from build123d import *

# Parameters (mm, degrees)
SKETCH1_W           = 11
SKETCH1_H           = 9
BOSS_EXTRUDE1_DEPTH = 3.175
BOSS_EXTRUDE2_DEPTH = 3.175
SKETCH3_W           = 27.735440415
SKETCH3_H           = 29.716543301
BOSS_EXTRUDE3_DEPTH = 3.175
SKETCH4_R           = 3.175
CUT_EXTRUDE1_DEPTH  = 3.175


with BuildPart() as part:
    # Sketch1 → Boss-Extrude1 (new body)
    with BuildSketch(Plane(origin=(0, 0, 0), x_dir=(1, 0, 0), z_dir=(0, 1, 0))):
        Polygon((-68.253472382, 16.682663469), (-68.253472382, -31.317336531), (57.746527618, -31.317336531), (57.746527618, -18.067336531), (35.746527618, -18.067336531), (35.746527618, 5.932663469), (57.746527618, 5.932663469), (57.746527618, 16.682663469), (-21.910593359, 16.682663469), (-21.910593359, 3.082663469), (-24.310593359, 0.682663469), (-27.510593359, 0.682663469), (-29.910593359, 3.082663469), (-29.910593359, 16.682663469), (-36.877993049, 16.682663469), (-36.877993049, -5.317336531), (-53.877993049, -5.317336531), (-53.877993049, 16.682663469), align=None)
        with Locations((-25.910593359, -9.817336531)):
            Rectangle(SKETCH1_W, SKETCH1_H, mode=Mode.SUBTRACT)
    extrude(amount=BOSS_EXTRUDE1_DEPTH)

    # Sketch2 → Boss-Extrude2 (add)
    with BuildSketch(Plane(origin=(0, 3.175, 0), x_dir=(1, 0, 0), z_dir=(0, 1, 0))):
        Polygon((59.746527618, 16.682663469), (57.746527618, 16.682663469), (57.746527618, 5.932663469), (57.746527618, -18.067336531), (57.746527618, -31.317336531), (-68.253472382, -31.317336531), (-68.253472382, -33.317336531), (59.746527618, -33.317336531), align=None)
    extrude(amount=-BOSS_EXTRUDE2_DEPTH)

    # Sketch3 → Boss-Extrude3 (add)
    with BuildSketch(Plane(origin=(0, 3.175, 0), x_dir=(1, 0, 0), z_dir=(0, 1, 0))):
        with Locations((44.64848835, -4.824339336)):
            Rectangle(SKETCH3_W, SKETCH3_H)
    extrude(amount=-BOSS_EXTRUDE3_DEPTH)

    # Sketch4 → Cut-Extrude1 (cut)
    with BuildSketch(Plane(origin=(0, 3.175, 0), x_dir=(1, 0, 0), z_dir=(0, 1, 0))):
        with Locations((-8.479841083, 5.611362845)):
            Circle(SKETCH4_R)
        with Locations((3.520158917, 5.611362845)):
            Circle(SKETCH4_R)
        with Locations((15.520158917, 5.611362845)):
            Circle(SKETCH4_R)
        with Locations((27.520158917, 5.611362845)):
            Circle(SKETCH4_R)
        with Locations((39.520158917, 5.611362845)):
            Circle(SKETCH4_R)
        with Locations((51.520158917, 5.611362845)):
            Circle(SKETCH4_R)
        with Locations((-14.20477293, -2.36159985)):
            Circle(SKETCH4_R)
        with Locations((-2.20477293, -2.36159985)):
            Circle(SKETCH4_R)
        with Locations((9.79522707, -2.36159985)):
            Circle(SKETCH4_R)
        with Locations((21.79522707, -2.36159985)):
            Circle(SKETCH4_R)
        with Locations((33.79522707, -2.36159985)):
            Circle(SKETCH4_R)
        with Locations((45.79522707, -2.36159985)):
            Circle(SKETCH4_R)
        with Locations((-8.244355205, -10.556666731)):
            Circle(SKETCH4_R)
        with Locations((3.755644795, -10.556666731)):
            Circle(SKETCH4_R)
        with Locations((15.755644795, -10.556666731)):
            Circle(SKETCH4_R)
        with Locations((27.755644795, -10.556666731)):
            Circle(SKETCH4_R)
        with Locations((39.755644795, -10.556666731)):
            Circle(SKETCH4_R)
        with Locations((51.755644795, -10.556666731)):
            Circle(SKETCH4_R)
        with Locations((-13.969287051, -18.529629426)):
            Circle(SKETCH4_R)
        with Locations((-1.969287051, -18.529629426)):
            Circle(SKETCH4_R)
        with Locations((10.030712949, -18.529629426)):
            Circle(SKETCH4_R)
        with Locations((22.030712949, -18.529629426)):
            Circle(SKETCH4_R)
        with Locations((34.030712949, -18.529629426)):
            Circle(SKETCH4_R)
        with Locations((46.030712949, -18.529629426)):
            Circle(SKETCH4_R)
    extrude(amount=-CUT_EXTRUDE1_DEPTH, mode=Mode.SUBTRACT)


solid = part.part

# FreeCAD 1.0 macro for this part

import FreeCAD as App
import Part
import Sketcher
from FreeCAD import Vector

doc = App.newDocument("Part")
body = doc.addObject("PartDesign::Body", "Body")

# Sketch on XZ plane
sketch1 = doc.addObject("Sketcher::SketchObject", "Sketch")
body.addObject(sketch1)
sketch1.AttachmentSupport = (doc.XZ_Plane, [""])
sketch1.MapMode = "FlatFace"
sketch1.addGeometry([
    Part.LineSegment(Vector(-68.3, -16.7, 0), Vector(-68.3, 31.3, 0)),  # 0
    Part.LineSegment(Vector(-68.3, 31.3, 0), Vector(57.7, 31.3, 0)),  # 1
    Part.LineSegment(Vector(57.7, 31.3, 0), Vector(57.7, 18.1, 0)),  # 2
    Part.LineSegment(Vector(57.7, 18.1, 0), Vector(35.7, 18.1, 0)),  # 3
    Part.LineSegment(Vector(35.7, 18.1, 0), Vector(35.7, -5.9, 0)),  # 4
    Part.LineSegment(Vector(35.7, -5.9, 0), Vector(57.7, -5.9, 0)),  # 5
    Part.LineSegment(Vector(57.7, -5.9, 0), Vector(57.7, -16.7, 0)),  # 6
    Part.LineSegment(Vector(57.7, -16.7, 0), Vector(-21.9, -16.7, 0)),  # 7
    Part.LineSegment(Vector(-21.9, -16.7, 0), Vector(-21.9, -3.1, 0)),  # 8
    Part.LineSegment(Vector(-21.9, -3.1, 0), Vector(-24.3, -0.7, 0)),  # 9
    Part.LineSegment(Vector(-24.3, -0.7, 0), Vector(-27.5, -0.7, 0)),  # 10
    Part.LineSegment(Vector(-27.5, -0.7, 0), Vector(-29.9, -3.1, 0)),  # 11
    Part.LineSegment(Vector(-29.9, -3.1, 0), Vector(-29.9, -16.7, 0)),  # 12
    Part.LineSegment(Vector(-29.9, -16.7, 0), Vector(-36.9, -16.7, 0)),  # 13
    Part.LineSegment(Vector(-36.9, -16.7, 0), Vector(-36.9, 5.3, 0)),  # 14
    Part.LineSegment(Vector(-36.9, 5.3, 0), Vector(-53.9, 5.3, 0)),  # 15
    Part.LineSegment(Vector(-53.9, 5.3, 0), Vector(-53.9, -16.7, 0)),  # 16
    Part.LineSegment(Vector(-53.9, -16.7, 0), Vector(-68.3, -16.7, 0)),  # 17
    Part.LineSegment(Vector(-20.4, 14.3, 0), Vector(-31.4, 14.3, 0)),  # 18
    Part.LineSegment(Vector(-31.4, 14.3, 0), Vector(-31.4, 5.3, 0)),  # 19
    Part.LineSegment(Vector(-31.4, 5.3, 0), Vector(-20.4, 5.3, 0)),  # 20
    Part.LineSegment(Vector(-20.4, 5.3, 0), Vector(-20.4, 14.3, 0)),  # 21
], False)
sketch1.addConstraint([
    Sketcher.Constraint("Coincident", 0, 2, 1, 1),
    Sketcher.Constraint("Coincident", 1, 2, 2, 1),
    Sketcher.Constraint("Coincident", 2, 2, 3, 1),
    Sketcher.Constraint("Coincident", 3, 2, 4, 1),
    Sketcher.Constraint("Coincident", 4, 2, 5, 1),
    Sketcher.Constraint("Coincident", 5, 2, 6, 1),
    Sketcher.Constraint("Coincident", 6, 2, 7, 1),
    Sketcher.Constraint("Coincident", 7, 2, 8, 1),
    Sketcher.Constraint("Coincident", 8, 2, 9, 1),
    Sketcher.Constraint("Coincident", 9, 2, 10, 1),
    Sketcher.Constraint("Coincident", 10, 2, 11, 1),
    Sketcher.Constraint("Coincident", 11, 2, 12, 1),
    Sketcher.Constraint("Coincident", 12, 2, 13, 1),
    Sketcher.Constraint("Coincident", 13, 2, 14, 1),
    Sketcher.Constraint("Coincident", 14, 2, 15, 1),
    Sketcher.Constraint("Coincident", 15, 2, 16, 1),
    Sketcher.Constraint("Coincident", 16, 2, 17, 1),
    Sketcher.Constraint("Coincident", 17, 2, 0, 1),
    Sketcher.Constraint("Coincident", 18, 2, 19, 1),
    Sketcher.Constraint("Coincident", 19, 2, 20, 1),
    Sketcher.Constraint("Coincident", 20, 2, 21, 1),
    Sketcher.Constraint("Coincident", 21, 2, 18, 1),
    Sketcher.Constraint("Vertical", 0),
    Sketcher.Constraint("Horizontal", 1),
    Sketcher.Constraint("Vertical", 2),
    Sketcher.Constraint("Horizontal", 3),
    Sketcher.Constraint("Vertical", 4),
    Sketcher.Constraint("Horizontal", 5),
    Sketcher.Constraint("Vertical", 6),
    Sketcher.Constraint("Horizontal", 7),
    Sketcher.Constraint("Vertical", 8),
    Sketcher.Constraint("Horizontal", 10),
    Sketcher.Constraint("Vertical", 12),
    Sketcher.Constraint("Horizontal", 13),
    Sketcher.Constraint("Vertical", 14),
    Sketcher.Constraint("Horizontal", 15),
    Sketcher.Constraint("Vertical", 16),
    Sketcher.Constraint("Horizontal", 17),
    Sketcher.Constraint("Horizontal", 18),
    Sketcher.Constraint("Vertical", 19),
    Sketcher.Constraint("Horizontal", 20),
    Sketcher.Constraint("Vertical", 21),
    Sketcher.Constraint("Perpendicular", 9, 11),
    Sketcher.Constraint("Horizontal", 8, 2, 11, 2),
    Sketcher.Constraint("Horizontal", 7, 2, 12, 2),
    Sketcher.Constraint("Horizontal", 13, 2, 16, 2),
    Sketcher.Constraint("Horizontal", 15, 2, 19, 2),
    Sketcher.Constraint("Vertical", 2, 2, 5, 2),
    Sketcher.Constraint("Equal", 5, 14),
    Sketcher.Constraint("Equal", 9, 11),
    Sketcher.Constraint("DistanceX", 1, 1, 1, 2, 126.0),
    Sketcher.Constraint("DistanceX", 3, 2, 3, 1, 22.0),
    Sketcher.Constraint("DistanceX", 15, 2, 15, 1, 17.0),
    Sketcher.Constraint("DistanceX", 18, 2, 18, 1, 11.0),
    Sketcher.Constraint("DistanceY", 0, 1, 0, 2, 48.0),
    Sketcher.Constraint("DistanceY", 4, 2, 4, 1, 24.0),
    Sketcher.Constraint("DistanceY", 19, 2, 19, 1, 9.0),
    Sketcher.Constraint("DistanceX", 10, 2, 10, 1, 3.2),
    Sketcher.Constraint("DistanceY", 8, 1, 8, 2, 13.6),
    Sketcher.Constraint("DistanceY", 7, 2, 9, 2, 16.0),
    Sketcher.Constraint("DistanceY", 2, 2, 2, 1, 13.25),
    Sketcher.Constraint("DistanceX", 18, 2, 10, 2, 3.9),
    Sketcher.Constraint("DistanceX", 13, 2, 13, 1, 6.9674),
    Sketcher.Constraint("DistanceX", 7, 2, 7, 1, 79.657121),
    Sketcher.Constraint("DistanceX", 0, 2, -1, 1, 68.253472),
    Sketcher.Constraint("DistanceY", -1, 1, 0, 2, 31.317337),
])
pad1 = doc.addObject("PartDesign::Pad", "Pad")
body.addObject(pad1)
pad1.Profile = sketch1
pad1.Length = 3.175
pad1.Reversed = True

# Sketch on XZ plane
sketch2 = doc.addObject("Sketcher::SketchObject", "Sketch001")
body.addObject(sketch2)
sketch2.AttachmentSupport = (doc.XZ_Plane, [""])
sketch2.MapMode = "FlatFace"
sketch2.AttachmentOffset = App.Placement(Vector(0, 0, -3.175), App.Rotation())
sketch2.addGeometry([
    Part.LineSegment(Vector(59.7, -16.7, 0), Vector(57.7, -16.7, 0)),  # 0
    Part.LineSegment(Vector(57.7, -16.7, 0), Vector(57.7, 31.3, 0)),  # 1
    Part.LineSegment(Vector(57.7, 31.3, 0), Vector(-68.3, 31.3, 0)),  # 2
    Part.LineSegment(Vector(-68.3, 31.3, 0), Vector(-68.3, 33.3, 0)),  # 3
    Part.LineSegment(Vector(-68.3, 33.3, 0), Vector(59.7, 33.3, 0)),  # 4
    Part.LineSegment(Vector(59.7, 33.3, 0), Vector(59.7, -16.7, 0)),  # 5
], False)
sketch2.addConstraint([
    Sketcher.Constraint("Coincident", 0, 2, 1, 1),
    Sketcher.Constraint("Coincident", 1, 2, 2, 1),
    Sketcher.Constraint("Coincident", 2, 2, 3, 1),
    Sketcher.Constraint("Coincident", 3, 2, 4, 1),
    Sketcher.Constraint("Coincident", 4, 2, 5, 1),
    Sketcher.Constraint("Coincident", 5, 2, 0, 1),
    Sketcher.Constraint("Horizontal", 0),
    Sketcher.Constraint("Vertical", 1),
    Sketcher.Constraint("Horizontal", 2),
    Sketcher.Constraint("Vertical", 3),
    Sketcher.Constraint("Horizontal", 4),
    Sketcher.Constraint("Vertical", 5),
    Sketcher.Constraint("Equal", 0, 3),
    Sketcher.Constraint("DistanceX", 0, 2, 0, 1, 2.0),
    Sketcher.Constraint("DistanceX", 2, 2, 2, 1, 126.0),
    Sketcher.Constraint("DistanceY", 1, 1, 1, 2, 48.0),
    Sketcher.Constraint("DistanceX", -1, 1, 0, 2, 57.746528),
    Sketcher.Constraint("DistanceY", 0, 2, -1, 1, 16.682663),
])
pad2 = doc.addObject("PartDesign::Pad", "Pad001")
body.addObject(pad2)
pad2.Profile = sketch2
pad2.Length = 3.175

# Sketch on XZ plane
sketch3 = doc.addObject("Sketcher::SketchObject", "Sketch002")
body.addObject(sketch3)
sketch3.AttachmentSupport = (doc.XZ_Plane, [""])
sketch3.MapMode = "FlatFace"
sketch3.AttachmentOffset = App.Placement(Vector(0, 0, -3.175), App.Rotation())
sketch3.addGeometry([
    Part.LineSegment(Vector(31, -10, 0), Vector(31, 20, 0)),
    Part.LineSegment(Vector(31, 20, 0), Vector(59, 20, 0)),
    Part.LineSegment(Vector(59, 20, 0), Vector(59, -10, 0)),
    Part.LineSegment(Vector(59, -10, 0), Vector(31, -10, 0)),
], False)
sketch3.addConstraint([
    Sketcher.Constraint("Coincident", 0, 2, 1, 1),
    Sketcher.Constraint("Coincident", 1, 2, 2, 1),
    Sketcher.Constraint("Coincident", 2, 2, 3, 1),
    Sketcher.Constraint("Coincident", 3, 2, 0, 1),
    Sketcher.Constraint("Vertical", 0),
    Sketcher.Constraint("Horizontal", 1),
    Sketcher.Constraint("Vertical", 2),
    Sketcher.Constraint("Horizontal", 3),
    Sketcher.Constraint("DistanceX", 1, 1, 1, 2, 27.73544),
    Sketcher.Constraint("DistanceY", 0, 1, 0, 2, 29.716543),
    Sketcher.Constraint("DistanceX", -1, 1, 0, 2, 30.780768),
    Sketcher.Constraint("DistanceY", -1, 1, 0, 2, 19.682611),
])
pad3 = doc.addObject("PartDesign::Pad", "Pad002")
body.addObject(pad3)
pad3.Profile = sketch3
pad3.Length = 3.175

# Sketch on XZ plane
sketch4 = doc.addObject("Sketcher::SketchObject", "Sketch003")
body.addObject(sketch4)
sketch4.AttachmentSupport = (doc.XZ_Plane, [""])
sketch4.MapMode = "FlatFace"
sketch4.AttachmentOffset = App.Placement(Vector(0, 0, -3.175), App.Rotation())
sketch4.addGeometry([
    Part.Circle(Vector(-8.5, -5.6, 0), Vector(0, 0, 1), 3.2),  # 0
    Part.Circle(Vector(3.5, -5.6, 0), Vector(0, 0, 1), 3.2),  # 1
    Part.Circle(Vector(15.5, -5.6, 0), Vector(0, 0, 1), 3.2),  # 2
    Part.Circle(Vector(27.5, -5.6, 0), Vector(0, 0, 1), 3.2),  # 3
    Part.Circle(Vector(39.5, -5.6, 0), Vector(0, 0, 1), 3.2),  # 4
    Part.Circle(Vector(51.5, -5.6, 0), Vector(0, 0, 1), 3.2),  # 5
    Part.Circle(Vector(-14.2, 2.4, 0), Vector(0, 0, 1), 3.2),  # 6
    Part.Circle(Vector(-2.2, 2.4, 0), Vector(0, 0, 1), 3.2),  # 7
    Part.Circle(Vector(9.8, 2.4, 0), Vector(0, 0, 1), 3.2),  # 8
    Part.Circle(Vector(21.8, 2.4, 0), Vector(0, 0, 1), 3.2),  # 9
    Part.Circle(Vector(33.8, 2.4, 0), Vector(0, 0, 1), 3.2),  # 10
    Part.Circle(Vector(45.8, 2.4, 0), Vector(0, 0, 1), 3.2),  # 11
    Part.Circle(Vector(-8.2, 10.6, 0), Vector(0, 0, 1), 3.2),  # 12
    Part.Circle(Vector(3.8, 10.6, 0), Vector(0, 0, 1), 3.2),  # 13
    Part.Circle(Vector(15.8, 10.6, 0), Vector(0, 0, 1), 3.2),  # 14
    Part.Circle(Vector(27.8, 10.6, 0), Vector(0, 0, 1), 3.2),  # 15
    Part.Circle(Vector(39.8, 10.6, 0), Vector(0, 0, 1), 3.2),  # 16
    Part.Circle(Vector(51.8, 10.6, 0), Vector(0, 0, 1), 3.2),  # 17
    Part.Circle(Vector(-14, 18.5, 0), Vector(0, 0, 1), 3.2),  # 18
    Part.Circle(Vector(-2, 18.5, 0), Vector(0, 0, 1), 3.2),  # 19
    Part.Circle(Vector(10, 18.5, 0), Vector(0, 0, 1), 3.2),  # 20
    Part.Circle(Vector(22, 18.5, 0), Vector(0, 0, 1), 3.2),  # 21
    Part.Circle(Vector(34, 18.5, 0), Vector(0, 0, 1), 3.2),  # 22
    Part.Circle(Vector(46, 18.5, 0), Vector(0, 0, 1), 3.2),  # 23
], False)
sketch4.addConstraint([
    Sketcher.Constraint("Equal", 0, 1),
    Sketcher.Constraint("Equal", 1, 2),
    Sketcher.Constraint("Equal", 2, 3),
    Sketcher.Constraint("Equal", 3, 4),
    Sketcher.Constraint("Equal", 4, 5),
    Sketcher.Constraint("Equal", 5, 6),
    Sketcher.Constraint("Equal", 6, 7),
    Sketcher.Constraint("Equal", 7, 8),
    Sketcher.Constraint("Equal", 8, 9),
    Sketcher.Constraint("Equal", 9, 10),
    Sketcher.Constraint("Equal", 10, 11),
    Sketcher.Constraint("Equal", 11, 12),
    Sketcher.Constraint("Equal", 12, 13),
    Sketcher.Constraint("Equal", 13, 14),
    Sketcher.Constraint("Equal", 14, 15),
    Sketcher.Constraint("Equal", 15, 16),
    Sketcher.Constraint("Equal", 16, 17),
    Sketcher.Constraint("Equal", 17, 18),
    Sketcher.Constraint("Equal", 18, 19),
    Sketcher.Constraint("Equal", 19, 20),
    Sketcher.Constraint("Equal", 20, 21),
    Sketcher.Constraint("Equal", 21, 22),
    Sketcher.Constraint("Equal", 22, 23),
    Sketcher.Constraint("Horizontal", 0, 3, 1, 3),
    Sketcher.Constraint("Horizontal", 1, 3, 2, 3),
    Sketcher.Constraint("Horizontal", 2, 3, 3, 3),
    Sketcher.Constraint("Horizontal", 3, 3, 4, 3),
    Sketcher.Constraint("Horizontal", 4, 3, 5, 3),
    Sketcher.Constraint("Horizontal", 6, 3, 7, 3),
    Sketcher.Constraint("Horizontal", 7, 3, 8, 3),
    Sketcher.Constraint("Horizontal", 8, 3, 9, 3),
    Sketcher.Constraint("Horizontal", 9, 3, 10, 3),
    Sketcher.Constraint("Horizontal", 10, 3, 11, 3),
    Sketcher.Constraint("Horizontal", 12, 3, 13, 3),
    Sketcher.Constraint("Horizontal", 13, 3, 14, 3),
    Sketcher.Constraint("Horizontal", 14, 3, 15, 3),
    Sketcher.Constraint("Horizontal", 15, 3, 16, 3),
    Sketcher.Constraint("Horizontal", 16, 3, 17, 3),
    Sketcher.Constraint("Horizontal", 18, 3, 19, 3),
    Sketcher.Constraint("Horizontal", 19, 3, 20, 3),
    Sketcher.Constraint("Horizontal", 20, 3, 21, 3),
    Sketcher.Constraint("Horizontal", 21, 3, 22, 3),
    Sketcher.Constraint("Horizontal", 22, 3, 23, 3),
    Sketcher.Constraint("Diameter", 0, 6.35),
    Sketcher.Constraint("DistanceX", 0, 3, 1, 3, 12.0),
    Sketcher.Constraint("DistanceX", 1, 3, 2, 3, 12.0),
    Sketcher.Constraint("DistanceX", 2, 3, 3, 3, 12.0),
    Sketcher.Constraint("DistanceX", 3, 3, 4, 3, 12.0),
    Sketcher.Constraint("DistanceX", 4, 3, 5, 3, 12.0),
    Sketcher.Constraint("DistanceX", 6, 3, 7, 3, 12.0),
    Sketcher.Constraint("DistanceX", 7, 3, 8, 3, 12.0),
    Sketcher.Constraint("DistanceX", 8, 3, 9, 3, 12.0),
    Sketcher.Constraint("DistanceX", 9, 3, 10, 3, 12.0),
    Sketcher.Constraint("DistanceX", 10, 3, 11, 3, 12.0),
    Sketcher.Constraint("DistanceX", 12, 3, 13, 3, 12.0),
    Sketcher.Constraint("DistanceX", 13, 3, 14, 3, 12.0),
    Sketcher.Constraint("DistanceX", 14, 3, 15, 3, 12.0),
    Sketcher.Constraint("DistanceX", 15, 3, 16, 3, 12.0),
    Sketcher.Constraint("DistanceX", 16, 3, 17, 3, 12.0),
    Sketcher.Constraint("DistanceX", 18, 3, 19, 3, 12.0),
    Sketcher.Constraint("DistanceX", 19, 3, 20, 3, 12.0),
    Sketcher.Constraint("DistanceX", 20, 3, 21, 3, 12.0),
    Sketcher.Constraint("DistanceX", 21, 3, 22, 3, 12.0),
    Sketcher.Constraint("DistanceX", 22, 3, 23, 3, 12.0),
    Sketcher.Constraint("DistanceY", -1, 1, 6, 3, 2.3616),
    Sketcher.Constraint("DistanceX", 0, 3, -1, 1, 8.479841),
    Sketcher.Constraint("DistanceY", -1, 1, 18, 3, 18.529629),
    Sketcher.Constraint("DistanceX", 6, 3, 0, 3, 5.724932),
    Sketcher.Constraint("DistanceY", 0, 3, 12, 3, 16.16803),
    Sketcher.Constraint("DistanceX", 18, 3, 12, 3, 5.724932),
    Sketcher.Constraint("DistanceY", 0, 3, -1, 1, 5.611363),
    Sketcher.Constraint("DistanceX", 12, 3, -1, 1, 8.244355),
])
pocket1 = doc.addObject("PartDesign::Pocket", "Pocket")
body.addObject(pocket1)
pocket1.Profile = sketch4
pocket1.Length = 3.175
pocket1.Reversed = True

doc.recompute()
